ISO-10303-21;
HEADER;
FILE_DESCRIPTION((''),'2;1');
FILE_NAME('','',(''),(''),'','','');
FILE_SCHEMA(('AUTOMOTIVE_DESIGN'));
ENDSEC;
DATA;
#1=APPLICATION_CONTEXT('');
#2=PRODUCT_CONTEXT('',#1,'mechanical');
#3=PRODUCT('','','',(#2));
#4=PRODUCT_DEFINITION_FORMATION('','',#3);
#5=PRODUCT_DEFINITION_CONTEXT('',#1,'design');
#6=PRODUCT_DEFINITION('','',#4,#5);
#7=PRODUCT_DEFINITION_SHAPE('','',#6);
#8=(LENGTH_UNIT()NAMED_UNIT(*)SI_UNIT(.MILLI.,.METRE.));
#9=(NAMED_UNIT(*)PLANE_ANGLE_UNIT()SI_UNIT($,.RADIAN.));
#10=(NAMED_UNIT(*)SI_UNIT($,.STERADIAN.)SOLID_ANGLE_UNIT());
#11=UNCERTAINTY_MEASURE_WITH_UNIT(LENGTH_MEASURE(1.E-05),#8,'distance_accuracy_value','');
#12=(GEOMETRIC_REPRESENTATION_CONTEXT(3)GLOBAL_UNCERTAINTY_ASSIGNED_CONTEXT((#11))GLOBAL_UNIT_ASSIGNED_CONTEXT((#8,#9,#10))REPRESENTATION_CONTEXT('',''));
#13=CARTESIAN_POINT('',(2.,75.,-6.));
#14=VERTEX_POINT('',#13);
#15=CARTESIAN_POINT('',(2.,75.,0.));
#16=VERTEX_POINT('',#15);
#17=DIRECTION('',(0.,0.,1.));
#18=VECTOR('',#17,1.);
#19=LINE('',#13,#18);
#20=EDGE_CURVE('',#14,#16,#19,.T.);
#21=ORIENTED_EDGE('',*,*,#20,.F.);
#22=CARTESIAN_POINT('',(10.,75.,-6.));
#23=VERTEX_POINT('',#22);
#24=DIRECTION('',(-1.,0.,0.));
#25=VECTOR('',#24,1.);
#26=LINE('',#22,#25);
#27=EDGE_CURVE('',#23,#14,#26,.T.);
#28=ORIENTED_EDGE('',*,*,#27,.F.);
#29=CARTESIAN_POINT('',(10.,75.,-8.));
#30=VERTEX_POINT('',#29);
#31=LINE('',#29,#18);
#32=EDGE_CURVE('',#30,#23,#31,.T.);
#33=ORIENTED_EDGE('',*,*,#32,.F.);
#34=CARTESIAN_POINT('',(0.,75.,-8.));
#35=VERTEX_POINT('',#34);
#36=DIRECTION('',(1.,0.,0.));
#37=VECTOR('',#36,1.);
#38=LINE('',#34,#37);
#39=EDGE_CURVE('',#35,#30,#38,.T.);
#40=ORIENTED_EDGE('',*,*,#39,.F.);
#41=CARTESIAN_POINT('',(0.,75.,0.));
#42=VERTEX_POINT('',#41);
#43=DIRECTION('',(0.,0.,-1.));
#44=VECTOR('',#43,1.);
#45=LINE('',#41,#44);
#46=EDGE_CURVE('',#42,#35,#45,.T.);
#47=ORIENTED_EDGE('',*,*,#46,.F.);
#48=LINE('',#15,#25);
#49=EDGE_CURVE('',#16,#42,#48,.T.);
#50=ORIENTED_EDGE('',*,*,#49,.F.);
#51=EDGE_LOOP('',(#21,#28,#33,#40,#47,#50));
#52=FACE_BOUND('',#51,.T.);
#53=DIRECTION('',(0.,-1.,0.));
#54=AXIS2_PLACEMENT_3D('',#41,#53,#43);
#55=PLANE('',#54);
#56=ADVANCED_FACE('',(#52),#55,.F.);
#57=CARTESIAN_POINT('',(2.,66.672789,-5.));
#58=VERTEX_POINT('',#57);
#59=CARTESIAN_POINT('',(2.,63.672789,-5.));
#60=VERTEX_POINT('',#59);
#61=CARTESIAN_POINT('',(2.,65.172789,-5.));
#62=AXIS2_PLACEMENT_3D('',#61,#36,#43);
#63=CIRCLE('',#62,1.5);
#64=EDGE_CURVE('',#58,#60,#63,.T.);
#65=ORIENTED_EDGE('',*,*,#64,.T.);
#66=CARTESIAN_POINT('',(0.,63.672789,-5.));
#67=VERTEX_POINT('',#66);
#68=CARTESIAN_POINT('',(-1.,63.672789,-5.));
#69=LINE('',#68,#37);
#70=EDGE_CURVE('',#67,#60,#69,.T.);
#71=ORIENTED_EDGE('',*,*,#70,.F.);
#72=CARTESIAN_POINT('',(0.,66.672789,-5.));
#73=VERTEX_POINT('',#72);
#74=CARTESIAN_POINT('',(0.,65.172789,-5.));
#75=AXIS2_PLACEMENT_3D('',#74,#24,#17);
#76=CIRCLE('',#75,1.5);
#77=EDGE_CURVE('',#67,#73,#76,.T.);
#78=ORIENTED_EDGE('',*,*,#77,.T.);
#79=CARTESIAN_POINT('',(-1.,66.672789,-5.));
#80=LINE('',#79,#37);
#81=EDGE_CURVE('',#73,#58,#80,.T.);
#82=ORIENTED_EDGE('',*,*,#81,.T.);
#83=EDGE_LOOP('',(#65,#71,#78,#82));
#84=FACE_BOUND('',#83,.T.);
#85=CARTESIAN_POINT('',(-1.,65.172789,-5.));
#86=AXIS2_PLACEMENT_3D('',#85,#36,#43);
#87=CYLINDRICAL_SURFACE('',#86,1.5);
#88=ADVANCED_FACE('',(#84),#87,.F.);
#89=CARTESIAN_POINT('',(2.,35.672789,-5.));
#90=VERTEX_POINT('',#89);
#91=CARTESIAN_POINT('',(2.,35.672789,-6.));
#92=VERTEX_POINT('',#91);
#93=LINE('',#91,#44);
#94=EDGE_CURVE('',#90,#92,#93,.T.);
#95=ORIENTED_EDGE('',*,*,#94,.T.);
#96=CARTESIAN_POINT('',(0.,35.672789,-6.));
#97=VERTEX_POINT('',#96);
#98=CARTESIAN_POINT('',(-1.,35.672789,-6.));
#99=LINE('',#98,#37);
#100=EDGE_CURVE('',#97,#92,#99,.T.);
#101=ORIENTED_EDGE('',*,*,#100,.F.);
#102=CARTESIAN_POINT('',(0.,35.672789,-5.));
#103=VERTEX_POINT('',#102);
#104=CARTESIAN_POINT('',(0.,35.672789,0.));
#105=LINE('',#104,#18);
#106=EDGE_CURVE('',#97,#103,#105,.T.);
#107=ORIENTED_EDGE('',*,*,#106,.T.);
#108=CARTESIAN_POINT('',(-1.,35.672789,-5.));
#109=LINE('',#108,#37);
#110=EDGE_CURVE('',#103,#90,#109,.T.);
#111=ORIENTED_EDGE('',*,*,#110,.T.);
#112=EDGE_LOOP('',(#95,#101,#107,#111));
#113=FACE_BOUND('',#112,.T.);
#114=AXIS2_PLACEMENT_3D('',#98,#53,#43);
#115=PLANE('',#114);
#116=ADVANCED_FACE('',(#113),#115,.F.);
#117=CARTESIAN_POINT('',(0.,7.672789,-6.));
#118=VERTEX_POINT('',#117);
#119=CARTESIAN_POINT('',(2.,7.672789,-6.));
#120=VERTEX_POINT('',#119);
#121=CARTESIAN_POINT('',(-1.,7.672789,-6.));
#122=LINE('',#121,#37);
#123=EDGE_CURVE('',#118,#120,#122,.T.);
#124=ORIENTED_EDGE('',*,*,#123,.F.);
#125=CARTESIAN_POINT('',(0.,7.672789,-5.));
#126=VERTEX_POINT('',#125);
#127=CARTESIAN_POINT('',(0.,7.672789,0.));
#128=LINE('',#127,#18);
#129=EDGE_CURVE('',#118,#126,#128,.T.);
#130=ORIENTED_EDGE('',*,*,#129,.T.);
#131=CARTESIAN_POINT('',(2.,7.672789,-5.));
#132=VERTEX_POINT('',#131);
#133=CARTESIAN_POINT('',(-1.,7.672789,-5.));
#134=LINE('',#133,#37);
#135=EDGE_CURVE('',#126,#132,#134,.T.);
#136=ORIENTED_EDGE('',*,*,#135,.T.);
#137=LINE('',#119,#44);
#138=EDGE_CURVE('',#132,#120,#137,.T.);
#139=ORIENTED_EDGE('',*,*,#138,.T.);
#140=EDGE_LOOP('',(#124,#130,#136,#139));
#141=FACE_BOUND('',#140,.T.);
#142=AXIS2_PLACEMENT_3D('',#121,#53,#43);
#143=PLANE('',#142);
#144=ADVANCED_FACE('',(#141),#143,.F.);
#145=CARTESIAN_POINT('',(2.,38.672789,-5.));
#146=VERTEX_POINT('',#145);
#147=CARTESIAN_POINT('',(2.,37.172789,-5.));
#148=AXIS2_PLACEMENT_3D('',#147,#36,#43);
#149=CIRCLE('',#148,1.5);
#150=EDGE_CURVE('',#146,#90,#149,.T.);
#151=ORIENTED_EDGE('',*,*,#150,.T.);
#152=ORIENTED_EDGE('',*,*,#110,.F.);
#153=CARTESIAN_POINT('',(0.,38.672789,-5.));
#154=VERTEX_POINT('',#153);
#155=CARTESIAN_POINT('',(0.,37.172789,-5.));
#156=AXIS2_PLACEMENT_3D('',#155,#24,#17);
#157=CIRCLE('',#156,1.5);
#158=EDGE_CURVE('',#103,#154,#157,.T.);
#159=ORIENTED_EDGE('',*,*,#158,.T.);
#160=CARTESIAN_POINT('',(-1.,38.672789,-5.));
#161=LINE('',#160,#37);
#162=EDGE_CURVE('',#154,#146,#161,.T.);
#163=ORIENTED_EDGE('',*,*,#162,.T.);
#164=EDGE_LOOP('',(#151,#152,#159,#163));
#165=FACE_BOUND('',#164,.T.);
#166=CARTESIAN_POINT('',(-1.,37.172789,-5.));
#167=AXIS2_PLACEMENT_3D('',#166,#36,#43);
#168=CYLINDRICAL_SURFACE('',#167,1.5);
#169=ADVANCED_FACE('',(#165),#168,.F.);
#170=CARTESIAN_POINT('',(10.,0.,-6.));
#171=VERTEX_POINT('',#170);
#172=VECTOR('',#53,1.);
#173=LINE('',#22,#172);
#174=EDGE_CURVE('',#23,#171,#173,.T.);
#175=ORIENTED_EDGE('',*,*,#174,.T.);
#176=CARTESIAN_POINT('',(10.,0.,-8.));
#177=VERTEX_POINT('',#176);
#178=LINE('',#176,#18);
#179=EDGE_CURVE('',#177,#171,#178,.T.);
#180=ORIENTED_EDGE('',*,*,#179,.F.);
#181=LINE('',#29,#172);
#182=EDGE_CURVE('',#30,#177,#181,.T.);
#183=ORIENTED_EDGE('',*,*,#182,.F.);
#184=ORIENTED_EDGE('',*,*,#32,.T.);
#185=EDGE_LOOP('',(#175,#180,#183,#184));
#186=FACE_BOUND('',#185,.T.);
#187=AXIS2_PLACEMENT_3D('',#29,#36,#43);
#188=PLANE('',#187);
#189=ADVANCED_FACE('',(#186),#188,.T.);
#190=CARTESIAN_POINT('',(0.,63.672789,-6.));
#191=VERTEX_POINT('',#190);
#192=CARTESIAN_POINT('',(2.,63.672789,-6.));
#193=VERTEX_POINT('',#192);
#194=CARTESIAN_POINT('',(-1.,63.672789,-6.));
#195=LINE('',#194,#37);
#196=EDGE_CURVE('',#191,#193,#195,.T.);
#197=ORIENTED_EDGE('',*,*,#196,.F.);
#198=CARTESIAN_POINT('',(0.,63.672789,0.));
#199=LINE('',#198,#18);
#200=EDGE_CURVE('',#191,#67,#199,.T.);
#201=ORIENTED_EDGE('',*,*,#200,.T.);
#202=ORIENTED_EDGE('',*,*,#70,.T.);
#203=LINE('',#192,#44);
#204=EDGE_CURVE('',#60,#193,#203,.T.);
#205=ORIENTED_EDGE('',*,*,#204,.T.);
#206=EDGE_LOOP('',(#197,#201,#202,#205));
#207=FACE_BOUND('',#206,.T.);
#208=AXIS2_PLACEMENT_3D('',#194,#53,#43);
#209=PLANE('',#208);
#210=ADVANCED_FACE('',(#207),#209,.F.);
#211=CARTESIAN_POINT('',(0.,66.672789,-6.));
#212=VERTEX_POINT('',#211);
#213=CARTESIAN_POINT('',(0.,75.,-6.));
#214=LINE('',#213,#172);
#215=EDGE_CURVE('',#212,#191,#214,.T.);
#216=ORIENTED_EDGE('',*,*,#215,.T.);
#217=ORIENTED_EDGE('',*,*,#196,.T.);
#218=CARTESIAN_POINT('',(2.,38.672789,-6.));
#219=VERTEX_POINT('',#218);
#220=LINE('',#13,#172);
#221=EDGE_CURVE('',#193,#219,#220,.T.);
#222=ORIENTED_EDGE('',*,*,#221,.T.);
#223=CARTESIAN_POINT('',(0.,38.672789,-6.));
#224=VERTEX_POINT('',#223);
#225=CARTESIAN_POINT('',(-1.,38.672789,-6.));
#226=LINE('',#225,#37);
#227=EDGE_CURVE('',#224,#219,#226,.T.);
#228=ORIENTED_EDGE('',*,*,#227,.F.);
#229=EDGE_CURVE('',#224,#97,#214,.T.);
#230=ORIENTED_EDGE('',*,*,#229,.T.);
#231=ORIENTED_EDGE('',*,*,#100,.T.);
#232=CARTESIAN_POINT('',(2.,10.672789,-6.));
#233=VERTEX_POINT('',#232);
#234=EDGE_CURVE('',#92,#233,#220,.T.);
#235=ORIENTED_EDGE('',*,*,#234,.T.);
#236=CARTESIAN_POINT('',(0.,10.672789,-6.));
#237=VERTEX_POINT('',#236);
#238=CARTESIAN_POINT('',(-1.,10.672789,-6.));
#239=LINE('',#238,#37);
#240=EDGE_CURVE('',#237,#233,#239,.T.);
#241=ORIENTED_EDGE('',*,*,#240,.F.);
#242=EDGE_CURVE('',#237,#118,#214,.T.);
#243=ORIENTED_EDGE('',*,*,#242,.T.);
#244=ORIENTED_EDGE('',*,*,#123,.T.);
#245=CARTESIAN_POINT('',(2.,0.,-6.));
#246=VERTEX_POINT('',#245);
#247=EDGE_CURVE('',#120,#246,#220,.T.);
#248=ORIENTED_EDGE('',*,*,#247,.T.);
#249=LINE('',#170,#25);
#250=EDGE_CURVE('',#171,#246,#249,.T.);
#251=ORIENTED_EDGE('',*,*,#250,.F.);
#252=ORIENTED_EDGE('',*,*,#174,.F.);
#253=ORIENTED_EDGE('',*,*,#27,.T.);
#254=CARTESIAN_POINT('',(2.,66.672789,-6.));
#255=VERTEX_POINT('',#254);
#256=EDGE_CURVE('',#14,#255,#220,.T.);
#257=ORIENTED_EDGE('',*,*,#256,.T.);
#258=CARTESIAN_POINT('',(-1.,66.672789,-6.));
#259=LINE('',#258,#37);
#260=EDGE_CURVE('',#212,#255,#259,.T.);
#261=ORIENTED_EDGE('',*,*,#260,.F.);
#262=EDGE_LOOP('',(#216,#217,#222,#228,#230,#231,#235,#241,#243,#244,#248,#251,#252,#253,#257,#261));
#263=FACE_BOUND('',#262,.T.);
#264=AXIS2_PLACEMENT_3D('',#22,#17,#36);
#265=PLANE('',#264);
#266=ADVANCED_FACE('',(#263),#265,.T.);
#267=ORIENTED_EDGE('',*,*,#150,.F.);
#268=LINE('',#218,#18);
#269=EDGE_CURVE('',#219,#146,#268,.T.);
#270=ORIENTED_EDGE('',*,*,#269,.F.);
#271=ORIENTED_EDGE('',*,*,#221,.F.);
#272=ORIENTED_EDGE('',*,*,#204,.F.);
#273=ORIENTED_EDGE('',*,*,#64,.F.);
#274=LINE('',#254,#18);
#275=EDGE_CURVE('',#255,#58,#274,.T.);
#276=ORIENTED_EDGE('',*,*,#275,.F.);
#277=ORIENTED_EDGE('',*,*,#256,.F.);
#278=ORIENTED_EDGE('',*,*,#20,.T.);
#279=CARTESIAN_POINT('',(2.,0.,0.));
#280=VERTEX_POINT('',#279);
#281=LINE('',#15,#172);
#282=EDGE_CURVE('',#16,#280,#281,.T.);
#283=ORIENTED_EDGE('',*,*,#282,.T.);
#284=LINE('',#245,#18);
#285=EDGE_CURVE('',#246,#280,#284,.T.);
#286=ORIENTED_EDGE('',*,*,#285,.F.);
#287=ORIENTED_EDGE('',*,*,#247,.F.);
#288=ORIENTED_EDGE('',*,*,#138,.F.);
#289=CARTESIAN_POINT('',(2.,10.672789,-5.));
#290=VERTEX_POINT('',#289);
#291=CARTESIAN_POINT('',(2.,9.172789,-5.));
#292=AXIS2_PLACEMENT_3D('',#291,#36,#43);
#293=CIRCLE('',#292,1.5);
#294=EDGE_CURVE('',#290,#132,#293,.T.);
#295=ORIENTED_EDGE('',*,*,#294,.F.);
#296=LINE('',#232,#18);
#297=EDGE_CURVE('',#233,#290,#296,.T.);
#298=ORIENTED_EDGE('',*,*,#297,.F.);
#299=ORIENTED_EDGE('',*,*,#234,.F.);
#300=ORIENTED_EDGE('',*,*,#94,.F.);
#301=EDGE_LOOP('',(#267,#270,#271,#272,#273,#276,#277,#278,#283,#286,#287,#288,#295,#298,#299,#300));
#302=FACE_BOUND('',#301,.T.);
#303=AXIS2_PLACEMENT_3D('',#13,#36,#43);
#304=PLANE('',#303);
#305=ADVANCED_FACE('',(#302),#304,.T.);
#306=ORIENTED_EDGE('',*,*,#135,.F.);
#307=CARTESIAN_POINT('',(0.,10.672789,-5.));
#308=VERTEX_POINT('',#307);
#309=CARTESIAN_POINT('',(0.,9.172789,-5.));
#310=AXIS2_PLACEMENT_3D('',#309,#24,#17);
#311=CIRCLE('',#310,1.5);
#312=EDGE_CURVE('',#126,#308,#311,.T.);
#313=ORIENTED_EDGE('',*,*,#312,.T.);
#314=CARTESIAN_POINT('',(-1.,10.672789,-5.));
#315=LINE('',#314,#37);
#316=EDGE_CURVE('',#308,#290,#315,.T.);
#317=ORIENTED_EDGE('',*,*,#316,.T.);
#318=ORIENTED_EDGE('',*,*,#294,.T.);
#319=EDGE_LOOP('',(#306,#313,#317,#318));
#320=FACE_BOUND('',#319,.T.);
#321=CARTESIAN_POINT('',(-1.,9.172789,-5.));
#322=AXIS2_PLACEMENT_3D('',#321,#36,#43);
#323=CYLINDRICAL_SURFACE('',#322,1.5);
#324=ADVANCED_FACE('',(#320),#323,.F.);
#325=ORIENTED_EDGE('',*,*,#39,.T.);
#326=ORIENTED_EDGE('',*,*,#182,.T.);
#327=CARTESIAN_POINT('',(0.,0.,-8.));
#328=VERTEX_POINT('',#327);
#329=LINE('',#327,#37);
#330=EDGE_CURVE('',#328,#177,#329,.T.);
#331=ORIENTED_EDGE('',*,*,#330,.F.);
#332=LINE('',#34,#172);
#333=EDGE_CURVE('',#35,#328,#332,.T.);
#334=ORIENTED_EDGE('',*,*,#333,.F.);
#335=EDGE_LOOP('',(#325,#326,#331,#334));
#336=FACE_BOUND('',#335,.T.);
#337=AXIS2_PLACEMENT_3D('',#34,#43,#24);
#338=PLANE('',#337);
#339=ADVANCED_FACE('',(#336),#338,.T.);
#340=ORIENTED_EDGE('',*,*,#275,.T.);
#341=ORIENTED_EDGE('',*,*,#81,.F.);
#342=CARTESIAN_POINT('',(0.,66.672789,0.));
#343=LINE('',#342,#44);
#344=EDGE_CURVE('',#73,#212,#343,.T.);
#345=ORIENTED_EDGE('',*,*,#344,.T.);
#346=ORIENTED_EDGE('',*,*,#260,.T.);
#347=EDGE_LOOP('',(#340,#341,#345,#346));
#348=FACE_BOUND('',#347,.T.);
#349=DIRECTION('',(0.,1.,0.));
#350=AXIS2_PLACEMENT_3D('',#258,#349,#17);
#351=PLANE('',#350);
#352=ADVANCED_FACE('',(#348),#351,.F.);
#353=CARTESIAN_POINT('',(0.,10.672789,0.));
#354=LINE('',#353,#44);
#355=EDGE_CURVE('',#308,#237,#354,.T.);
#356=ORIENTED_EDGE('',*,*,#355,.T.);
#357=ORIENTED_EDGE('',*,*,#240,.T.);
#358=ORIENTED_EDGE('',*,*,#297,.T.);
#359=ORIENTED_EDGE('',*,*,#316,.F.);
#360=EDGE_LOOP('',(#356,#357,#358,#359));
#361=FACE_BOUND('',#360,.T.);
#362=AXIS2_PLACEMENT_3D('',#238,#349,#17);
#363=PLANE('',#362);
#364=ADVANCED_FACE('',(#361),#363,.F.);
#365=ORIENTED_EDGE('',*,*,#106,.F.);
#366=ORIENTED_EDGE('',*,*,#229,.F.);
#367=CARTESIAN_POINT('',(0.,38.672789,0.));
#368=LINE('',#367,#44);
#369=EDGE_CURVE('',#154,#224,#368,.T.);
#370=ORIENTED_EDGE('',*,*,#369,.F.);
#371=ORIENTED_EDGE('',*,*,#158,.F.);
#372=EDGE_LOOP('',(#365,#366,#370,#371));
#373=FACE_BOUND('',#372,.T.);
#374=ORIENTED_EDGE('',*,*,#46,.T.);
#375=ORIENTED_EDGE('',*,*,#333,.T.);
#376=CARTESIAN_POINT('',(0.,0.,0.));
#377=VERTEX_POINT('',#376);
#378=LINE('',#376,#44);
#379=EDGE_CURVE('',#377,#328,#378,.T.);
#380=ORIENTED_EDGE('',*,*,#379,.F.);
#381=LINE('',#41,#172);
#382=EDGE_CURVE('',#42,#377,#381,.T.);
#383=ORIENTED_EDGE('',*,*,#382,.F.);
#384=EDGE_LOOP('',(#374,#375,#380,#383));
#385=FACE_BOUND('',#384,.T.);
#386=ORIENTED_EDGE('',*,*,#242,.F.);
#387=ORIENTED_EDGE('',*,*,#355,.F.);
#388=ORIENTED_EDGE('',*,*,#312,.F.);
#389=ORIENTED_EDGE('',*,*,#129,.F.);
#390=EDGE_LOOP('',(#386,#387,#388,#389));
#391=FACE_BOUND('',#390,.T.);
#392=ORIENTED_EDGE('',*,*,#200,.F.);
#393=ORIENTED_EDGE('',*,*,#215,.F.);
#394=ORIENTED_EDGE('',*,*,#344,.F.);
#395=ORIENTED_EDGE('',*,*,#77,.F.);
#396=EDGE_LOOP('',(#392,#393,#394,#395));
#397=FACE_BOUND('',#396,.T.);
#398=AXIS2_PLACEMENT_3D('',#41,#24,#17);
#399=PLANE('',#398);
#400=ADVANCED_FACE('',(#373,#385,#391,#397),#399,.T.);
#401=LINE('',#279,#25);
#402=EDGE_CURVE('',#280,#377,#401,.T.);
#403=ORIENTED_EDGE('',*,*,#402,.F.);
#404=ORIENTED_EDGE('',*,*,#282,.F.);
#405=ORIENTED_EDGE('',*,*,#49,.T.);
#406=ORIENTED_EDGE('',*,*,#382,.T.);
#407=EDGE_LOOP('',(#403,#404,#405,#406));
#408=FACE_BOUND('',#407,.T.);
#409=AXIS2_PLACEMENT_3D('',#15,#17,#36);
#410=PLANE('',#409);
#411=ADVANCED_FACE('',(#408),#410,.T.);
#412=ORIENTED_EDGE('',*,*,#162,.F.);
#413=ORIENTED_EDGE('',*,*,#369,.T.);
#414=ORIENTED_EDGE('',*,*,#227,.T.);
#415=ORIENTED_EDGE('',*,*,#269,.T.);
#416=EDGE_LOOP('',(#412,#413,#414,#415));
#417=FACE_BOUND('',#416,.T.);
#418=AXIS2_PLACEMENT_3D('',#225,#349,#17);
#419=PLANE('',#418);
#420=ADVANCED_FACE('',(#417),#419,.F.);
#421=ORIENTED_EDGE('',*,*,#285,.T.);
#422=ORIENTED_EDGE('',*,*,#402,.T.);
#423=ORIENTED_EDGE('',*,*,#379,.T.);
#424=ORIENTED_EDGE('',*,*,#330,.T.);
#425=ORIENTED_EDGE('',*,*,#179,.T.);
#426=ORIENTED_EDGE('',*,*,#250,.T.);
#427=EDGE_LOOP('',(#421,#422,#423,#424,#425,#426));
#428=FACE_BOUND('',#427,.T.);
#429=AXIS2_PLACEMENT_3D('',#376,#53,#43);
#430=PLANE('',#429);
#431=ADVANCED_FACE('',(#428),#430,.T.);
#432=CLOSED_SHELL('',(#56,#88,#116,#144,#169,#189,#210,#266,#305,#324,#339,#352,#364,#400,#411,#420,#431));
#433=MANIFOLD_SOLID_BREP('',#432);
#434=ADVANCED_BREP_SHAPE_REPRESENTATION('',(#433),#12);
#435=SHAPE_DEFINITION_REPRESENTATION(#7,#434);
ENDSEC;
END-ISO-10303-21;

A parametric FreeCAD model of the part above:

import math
import FreeCAD as App
import Part
import Sketcher
from FreeCAD import Vector

doc = App.newDocument("Part")
body = doc.addObject("PartDesign::Body", "Body")

# Sketch on XZ plane
sketch1 = body.newObject("Sketcher::SketchObject", "Sketch")
sketch1.AttachmentSupport = (doc.getObject("XZ_Plane"), [""])
sketch1.MapMode = "FlatFace"
sketch1.addGeometry([
    Part.LineSegment(Vector(0, -8, 0), Vector(0, 0, 0)),  # 0
    Part.LineSegment(Vector(0, 0, 0), Vector(2, 0, 0)),  # 1
    Part.LineSegment(Vector(2, 0, 0), Vector(2, -6, 0)),  # 2
    Part.LineSegment(Vector(2, -6, 0), Vector(10, -6, 0)),  # 3
    Part.LineSegment(Vector(10, -6, 0), Vector(10, -8, 0)),  # 4
    Part.LineSegment(Vector(10, -8, 0), Vector(0, -8, 0)),  # 5
], False)
sketch1.addConstraint([
    Sketcher.Constraint("Coincident", 0, 2, 1, 1),
    Sketcher.Constraint("Coincident", 1, 2, 2, 1),
    Sketcher.Constraint("Coincident", 2, 2, 3, 1),
    Sketcher.Constraint("Coincident", 3, 2, 4, 1),
    Sketcher.Constraint("Coincident", 4, 2, 5, 1),
    Sketcher.Constraint("Coincident", 5, 2, 0, 1),
    Sketcher.Constraint("Vertical", 0),
    Sketcher.Constraint("Horizontal", 1),
    Sketcher.Constraint("Vertical", 2),
    Sketcher.Constraint("Horizontal", 3),
    Sketcher.Constraint("Vertical", 4),
    Sketcher.Constraint("Horizontal", 5),
    Sketcher.Constraint("Coincident", 0, 2, -1, 1),
    Sketcher.Constraint("Equal", 3, 0),
    Sketcher.Constraint("Equal", 1, 4),
    Sketcher.Constraint("DistanceX", 1, 1, 1, 2, 2.0),
    Sketcher.Constraint("DistanceX", 3, 1, 3, 2, 8.0),
])
pad1 = body.newObject("PartDesign::Pad", "Pad")
pad1.Profile = sketch1
pad1.Length = 75
pad1.Reversed = True

# Sketch on YZ plane
sketch2 = body.newObject("Sketcher::SketchObject", "Sketch001")
sketch2.AttachmentSupport = (doc.getObject("YZ_Plane"), [""])
sketch2.MapMode = "FlatFace"
sketch2.AttachmentOffset = App.Placement(Vector(0, 0, 2), App.Rotation())
sketch2.addGeometry([
    Part.LineSegment(Vector(35.672789, -6, 0), Vector(38.672789, -6, 0)),  # 0
    Part.LineSegment(Vector(38.672789, -6, 0), Vector(38.672789, -5, 0)),  # 1
    Part.ArcOfCircle(Part.Circle(Vector(37.172789, -5, 0), Vector(0, 0, 1), 1.5), math.radians(0), math.radians(180)),  # 2
    Part.LineSegment(Vector(35.672789, -5, 0), Vector(35.672789, -6, 0)),  # 3
    Part.LineSegment(Vector(63.672789, -5, 0), Vector(63.672789, -6, 0)),  # 4
    Part.LineSegment(Vector(63.672789, -6, 0), Vector(66.672789, -6, 0)),  # 5
    Part.LineSegment(Vector(66.672789, -6, 0), Vector(66.672789, -5, 0)),  # 6
    Part.ArcOfCircle(Part.Circle(Vector(65.172789, -5, 0), Vector(0, 0, 1), 1.5), math.radians(0), math.radians(180)),  # 7
    Part.LineSegment(Vector(7.672789, -5, 0), Vector(7.672789, -6, 0)),  # 8
    Part.LineSegment(Vector(7.672789, -6, 0), Vector(10.672789, -6, 0)),  # 9
    Part.LineSegment(Vector(10.672789, -6, 0), Vector(10.672789, -5, 0)),  # 10
    Part.ArcOfCircle(Part.Circle(Vector(9.172789, -5, 0), Vector(0, 0, 1), 1.5), math.radians(0), math.radians(180)),  # 11
], False)
sketch2.addConstraint([
    Sketcher.Constraint("Coincident", 0, 2, 1, 1),
    Sketcher.Constraint("Tangent", 1, 2, 2, 1),
    Sketcher.Constraint("Tangent", 2, 2, 3, 1),
    Sketcher.Constraint("Coincident", 3, 2, 0, 1),
    Sketcher.Constraint("Coincident", 4, 2, 5, 1),
    Sketcher.Constraint("Coincident", 5, 2, 6, 1),
    Sketcher.Constraint("Tangent", 6, 2, 7, 1),
    Sketcher.Constraint("Tangent", 7, 2, 4, 1),
    Sketcher.Constraint("Coincident", 8, 2, 9, 1),
    Sketcher.Constraint("Coincident", 9, 2, 10, 1),
    Sketcher.Constraint("Tangent", 10, 2, 11, 1),
    Sketcher.Constraint("Tangent", 11, 2, 8, 1),
    Sketcher.Constraint("Horizontal", 0),
    Sketcher.Constraint("Vertical", 1),
    Sketcher.Constraint("Vertical", 3),
    Sketcher.Constraint("Vertical", 4),
    Sketcher.Constraint("Horizontal", 5),
    Sketcher.Constraint("Vertical", 6),
    Sketcher.Constraint("Vertical", 8),
    Sketcher.Constraint("Horizontal", 9),
    Sketcher.Constraint("Vertical", 10),
    Sketcher.Constraint("Equal", 2, 7),
    Sketcher.Constraint("Equal", 7, 11),
    Sketcher.Constraint("Horizontal", 2, 3, 7, 3),
    Sketcher.Constraint("Horizontal", 7, 3, 11, 3),
    Sketcher.Constraint("Horizontal", 3, 2, 4, 2),
    Sketcher.Constraint("Horizontal", 5, 2, 8, 2),
    Sketcher.Constraint("Radius", 2, 1.5),
    Sketcher.Constraint("DistanceY", 1, 1, 1, 2, 1.0),
    Sketcher.Constraint("DistanceY", 2, 3, -1, 1, 5.0),
    Sketcher.Constraint("DistanceX", 2, 3, 7, 3, 28.0),
    Sketcher.Constraint("DistanceX", 11, 3, 2, 3, 28.0),
    Sketcher.Constraint("DistanceX", -1, 1, 2, 3, 37.172789),
])
pocket1 = body.newObject("PartDesign::Pocket", "Pocket")
pocket1.Profile = sketch2
pocket1.Type = "ThroughAll"
pocket1.Midplane = True

doc.recompute()
